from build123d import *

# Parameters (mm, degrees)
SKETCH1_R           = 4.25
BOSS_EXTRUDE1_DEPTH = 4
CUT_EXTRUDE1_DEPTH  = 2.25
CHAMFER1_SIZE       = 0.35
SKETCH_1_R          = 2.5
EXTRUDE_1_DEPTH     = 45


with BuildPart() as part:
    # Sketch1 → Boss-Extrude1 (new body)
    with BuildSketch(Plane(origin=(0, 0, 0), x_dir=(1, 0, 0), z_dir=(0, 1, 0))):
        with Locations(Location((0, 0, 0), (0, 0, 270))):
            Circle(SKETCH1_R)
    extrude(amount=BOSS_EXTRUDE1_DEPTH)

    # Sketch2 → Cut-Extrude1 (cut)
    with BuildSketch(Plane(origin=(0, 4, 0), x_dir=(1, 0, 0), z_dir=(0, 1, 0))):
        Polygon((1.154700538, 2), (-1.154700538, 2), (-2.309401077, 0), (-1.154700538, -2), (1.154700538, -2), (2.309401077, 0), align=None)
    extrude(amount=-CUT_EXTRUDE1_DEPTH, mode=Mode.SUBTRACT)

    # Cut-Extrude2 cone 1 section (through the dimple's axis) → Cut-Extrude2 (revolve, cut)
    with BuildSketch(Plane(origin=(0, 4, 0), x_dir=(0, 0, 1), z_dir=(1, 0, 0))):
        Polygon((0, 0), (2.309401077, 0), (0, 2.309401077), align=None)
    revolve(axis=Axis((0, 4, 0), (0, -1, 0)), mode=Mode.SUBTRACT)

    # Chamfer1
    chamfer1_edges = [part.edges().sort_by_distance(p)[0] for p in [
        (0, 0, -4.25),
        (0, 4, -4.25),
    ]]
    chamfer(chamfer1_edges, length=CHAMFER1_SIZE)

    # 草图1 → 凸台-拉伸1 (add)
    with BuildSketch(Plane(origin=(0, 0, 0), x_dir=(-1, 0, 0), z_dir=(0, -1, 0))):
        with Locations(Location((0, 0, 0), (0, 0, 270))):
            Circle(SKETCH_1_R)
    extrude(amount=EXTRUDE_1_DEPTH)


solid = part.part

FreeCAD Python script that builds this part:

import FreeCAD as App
import Part
import Sketcher
from FreeCAD import Vector
Q = App.Units.Quantity


def edges_at(feature, points):
    """Names of the edges that pass closest to the given points."""
    edges = feature.Shape.Edges
    near = lambda p: min(range(len(edges)), key=lambda i: edges[i].distToShape(Part.Vertex(*p))[0])
    return sorted({f"Edge{near(p) + 1}" for p in points})

doc = App.newDocument("Part")
body = doc.addObject("PartDesign::Body", "Body")

sketch1 = doc.addObject("Sketcher::SketchObject", "Sketch")
body.addObject(sketch1)
sketch1.AttachmentSupport = (doc.XZ_Plane, [""])
sketch1.MapMode = "FlatFace"
sketch1.addGeometry(Part.Circle(Vector(0, 0, 0), Vector(0, 0, 1), 4.2), False)
sketch1.addConstraint(Sketcher.Constraint("Coincident", 0, 3, -1, 1))
sketch1.addConstraint(Sketcher.Constraint("Diameter", 0, Q("8.5 mm")))
pad1 = doc.addObject("PartDesign::Pad", "Pad")
body.addObject(pad1)
pad1.Profile = sketch1
pad1.Length = 4
pad1.Reversed = True

sketch2 = doc.addObject("Sketcher::SketchObject", "Sketch001")
body.addObject(sketch2)
sketch2.AttachmentSupport = (doc.XZ_Plane, [""])
sketch2.MapMode = "FlatFace"
sketch2.AttachmentOffset = App.Placement(Vector(0, 0, -4), App.Rotation())
sketch2.addGeometry(Part.LineSegment(Vector(1.2, -2, 0), Vector(-1.2, -2, 0)), False)
sketch2.addGeometry(Part.LineSegment(Vector(-1.2, -2, 0), Vector(-2.3, 0, 0)), False)
sketch2.addGeometry(Part.LineSegment(Vector(-2.3, 0, 0), Vector(-1.2, 2, 0)), False)
sketch2.addGeometry(Part.LineSegment(Vector(-1.2, 2, 0), Vector(1.2, 2, 0)), False)
sketch2.addGeometry(Part.LineSegment(Vector(1.2, 2, 0), Vector(2.3, 0, 0)), False)
sketch2.addGeometry(Part.LineSegment(Vector(2.3, 0, 0), Vector(1.2, -2, 0)), False)
sketch2.addConstraint(Sketcher.Constraint("Coincident", 0, 2, 1, 1))
sketch2.addConstraint(Sketcher.Constraint("Coincident", 1, 2, 2, 1))
sketch2.addConstraint(Sketcher.Constraint("Coincident", 2, 2, 3, 1))
sketch2.addConstraint(Sketcher.Constraint("Coincident", 3, 2, 4, 1))
sketch2.addConstraint(Sketcher.Constraint("Coincident", 4, 2, 5, 1))
sketch2.addConstraint(Sketcher.Constraint("Coincident", 5, 2, 0, 1))
sketch2.addConstraint(Sketcher.Constraint("Horizontal", 0))
sketch2.addConstraint(Sketcher.Constraint("Horizontal", 3))
sketch2.addConstraint(Sketcher.Constraint("Symmetric", 0, 2, 3, 2, -1, 1))
sketch2.addConstraint(Sketcher.Constraint("Symmetric", 1, 2, 4, 2, -1, 1))
sketch2.addConstraint(Sketcher.Constraint("PointOnObject", 1, 2, -1))
sketch2.addConstraint(Sketcher.Constraint("Parallel", 2, 5))
sketch2.addConstraint(Sketcher.Constraint("Vertical", 0, 2, 2, 2))
sketch2.addConstraint(Sketcher.Constraint("Angle", 1, Q("120 deg")))
sketch2.addConstraint(Sketcher.Constraint("DistanceY", 0, 2, -1, 1, Q("2 mm")))
sketch2.addConstraint(Sketcher.Constraint("DistanceX", 0, 2, 0, 1, Q("2.309401 mm")))
pocket1 = doc.addObject("PartDesign::Pocket", "Pocket")
body.addObject(pocket1)
pocket1.Profile = sketch2
pocket1.Length = 2.25
pocket1.Reversed = True

sketch3 = doc.addObject("Sketcher::SketchObject", "Sketch002")
body.addObject(sketch3)
sketch3.AttachmentSupport = (doc.YZ_Plane, [""])
sketch3.MapMode = "FlatFace"
sketch3.addGeometry(Part.LineSegment(Vector(4, 0, 0), Vector(4, 2.3, 0)), False)
sketch3.addGeometry(Part.LineSegment(Vector(4, 2.3, 0), Vector(1.7, 0, 0)), False)
sketch3.addGeometry(Part.LineSegment(Vector(1.7, 0, 0), Vector(4, 0, 0)), False)
sketch3.addConstraint(Sketcher.Constraint("Coincident", 0, 2, 1, 1))
sketch3.addConstraint(Sketcher.Constraint("Coincident", 1, 2, 2, 1))
sketch3.addConstraint(Sketcher.Constraint("Coincident", 2, 2, 0, 1))
sketch3.addConstraint(Sketcher.Constraint("Vertical", 0))
sketch3.addConstraint(Sketcher.Constraint("Horizontal", 2))
sketch3.addConstraint(Sketcher.Constraint("PointOnObject", 1, 2, -1))
sketch3.addConstraint(Sketcher.Constraint("Equal", 2, 0))
sketch3.addConstraint(Sketcher.Constraint("DistanceX", -1, 1, 0, 2, Q("4 mm")))
sketch3.addConstraint(Sketcher.Constraint("DistanceX", 2, 1, 2, 2, Q("2.309401 mm")))
groove = doc.addObject("PartDesign::Groove", "Groove")
body.addObject(groove)
groove.Profile = sketch3
groove.ReferenceAxis = (sketch3, ["H_Axis"])
groove.Angle = 360
doc.recompute()

chamfer = doc.addObject("PartDesign::Chamfer", "Chamfer")
body.addObject(chamfer)
chamfer.Base = (groove, edges_at(groove, [(0, 0, -4.25), (0, 4, -4.25)]))
chamfer.Size = 0.35

sketch4 = doc.addObject("Sketcher::SketchObject", "Sketch003")
body.addObject(sketch4)
sketch4.AttachmentSupport = (doc.XZ_Plane, [""])
sketch4.MapMode = "FlatFace"
sketch4.addGeometry(Part.Circle(Vector(0, 0, 0), Vector(0, 0, 1), 2.5), False)
sketch4.addConstraint(Sketcher.Constraint("Coincident", 0, 3, -1, 1))
sketch4.addConstraint(Sketcher.Constraint("Diameter", 0, Q("5 mm")))
pad2 = doc.addObject("PartDesign::Pad", "Pad001")
body.addObject(pad2)
pad2.Profile = sketch4
pad2.Length = 45

doc.recompute()
